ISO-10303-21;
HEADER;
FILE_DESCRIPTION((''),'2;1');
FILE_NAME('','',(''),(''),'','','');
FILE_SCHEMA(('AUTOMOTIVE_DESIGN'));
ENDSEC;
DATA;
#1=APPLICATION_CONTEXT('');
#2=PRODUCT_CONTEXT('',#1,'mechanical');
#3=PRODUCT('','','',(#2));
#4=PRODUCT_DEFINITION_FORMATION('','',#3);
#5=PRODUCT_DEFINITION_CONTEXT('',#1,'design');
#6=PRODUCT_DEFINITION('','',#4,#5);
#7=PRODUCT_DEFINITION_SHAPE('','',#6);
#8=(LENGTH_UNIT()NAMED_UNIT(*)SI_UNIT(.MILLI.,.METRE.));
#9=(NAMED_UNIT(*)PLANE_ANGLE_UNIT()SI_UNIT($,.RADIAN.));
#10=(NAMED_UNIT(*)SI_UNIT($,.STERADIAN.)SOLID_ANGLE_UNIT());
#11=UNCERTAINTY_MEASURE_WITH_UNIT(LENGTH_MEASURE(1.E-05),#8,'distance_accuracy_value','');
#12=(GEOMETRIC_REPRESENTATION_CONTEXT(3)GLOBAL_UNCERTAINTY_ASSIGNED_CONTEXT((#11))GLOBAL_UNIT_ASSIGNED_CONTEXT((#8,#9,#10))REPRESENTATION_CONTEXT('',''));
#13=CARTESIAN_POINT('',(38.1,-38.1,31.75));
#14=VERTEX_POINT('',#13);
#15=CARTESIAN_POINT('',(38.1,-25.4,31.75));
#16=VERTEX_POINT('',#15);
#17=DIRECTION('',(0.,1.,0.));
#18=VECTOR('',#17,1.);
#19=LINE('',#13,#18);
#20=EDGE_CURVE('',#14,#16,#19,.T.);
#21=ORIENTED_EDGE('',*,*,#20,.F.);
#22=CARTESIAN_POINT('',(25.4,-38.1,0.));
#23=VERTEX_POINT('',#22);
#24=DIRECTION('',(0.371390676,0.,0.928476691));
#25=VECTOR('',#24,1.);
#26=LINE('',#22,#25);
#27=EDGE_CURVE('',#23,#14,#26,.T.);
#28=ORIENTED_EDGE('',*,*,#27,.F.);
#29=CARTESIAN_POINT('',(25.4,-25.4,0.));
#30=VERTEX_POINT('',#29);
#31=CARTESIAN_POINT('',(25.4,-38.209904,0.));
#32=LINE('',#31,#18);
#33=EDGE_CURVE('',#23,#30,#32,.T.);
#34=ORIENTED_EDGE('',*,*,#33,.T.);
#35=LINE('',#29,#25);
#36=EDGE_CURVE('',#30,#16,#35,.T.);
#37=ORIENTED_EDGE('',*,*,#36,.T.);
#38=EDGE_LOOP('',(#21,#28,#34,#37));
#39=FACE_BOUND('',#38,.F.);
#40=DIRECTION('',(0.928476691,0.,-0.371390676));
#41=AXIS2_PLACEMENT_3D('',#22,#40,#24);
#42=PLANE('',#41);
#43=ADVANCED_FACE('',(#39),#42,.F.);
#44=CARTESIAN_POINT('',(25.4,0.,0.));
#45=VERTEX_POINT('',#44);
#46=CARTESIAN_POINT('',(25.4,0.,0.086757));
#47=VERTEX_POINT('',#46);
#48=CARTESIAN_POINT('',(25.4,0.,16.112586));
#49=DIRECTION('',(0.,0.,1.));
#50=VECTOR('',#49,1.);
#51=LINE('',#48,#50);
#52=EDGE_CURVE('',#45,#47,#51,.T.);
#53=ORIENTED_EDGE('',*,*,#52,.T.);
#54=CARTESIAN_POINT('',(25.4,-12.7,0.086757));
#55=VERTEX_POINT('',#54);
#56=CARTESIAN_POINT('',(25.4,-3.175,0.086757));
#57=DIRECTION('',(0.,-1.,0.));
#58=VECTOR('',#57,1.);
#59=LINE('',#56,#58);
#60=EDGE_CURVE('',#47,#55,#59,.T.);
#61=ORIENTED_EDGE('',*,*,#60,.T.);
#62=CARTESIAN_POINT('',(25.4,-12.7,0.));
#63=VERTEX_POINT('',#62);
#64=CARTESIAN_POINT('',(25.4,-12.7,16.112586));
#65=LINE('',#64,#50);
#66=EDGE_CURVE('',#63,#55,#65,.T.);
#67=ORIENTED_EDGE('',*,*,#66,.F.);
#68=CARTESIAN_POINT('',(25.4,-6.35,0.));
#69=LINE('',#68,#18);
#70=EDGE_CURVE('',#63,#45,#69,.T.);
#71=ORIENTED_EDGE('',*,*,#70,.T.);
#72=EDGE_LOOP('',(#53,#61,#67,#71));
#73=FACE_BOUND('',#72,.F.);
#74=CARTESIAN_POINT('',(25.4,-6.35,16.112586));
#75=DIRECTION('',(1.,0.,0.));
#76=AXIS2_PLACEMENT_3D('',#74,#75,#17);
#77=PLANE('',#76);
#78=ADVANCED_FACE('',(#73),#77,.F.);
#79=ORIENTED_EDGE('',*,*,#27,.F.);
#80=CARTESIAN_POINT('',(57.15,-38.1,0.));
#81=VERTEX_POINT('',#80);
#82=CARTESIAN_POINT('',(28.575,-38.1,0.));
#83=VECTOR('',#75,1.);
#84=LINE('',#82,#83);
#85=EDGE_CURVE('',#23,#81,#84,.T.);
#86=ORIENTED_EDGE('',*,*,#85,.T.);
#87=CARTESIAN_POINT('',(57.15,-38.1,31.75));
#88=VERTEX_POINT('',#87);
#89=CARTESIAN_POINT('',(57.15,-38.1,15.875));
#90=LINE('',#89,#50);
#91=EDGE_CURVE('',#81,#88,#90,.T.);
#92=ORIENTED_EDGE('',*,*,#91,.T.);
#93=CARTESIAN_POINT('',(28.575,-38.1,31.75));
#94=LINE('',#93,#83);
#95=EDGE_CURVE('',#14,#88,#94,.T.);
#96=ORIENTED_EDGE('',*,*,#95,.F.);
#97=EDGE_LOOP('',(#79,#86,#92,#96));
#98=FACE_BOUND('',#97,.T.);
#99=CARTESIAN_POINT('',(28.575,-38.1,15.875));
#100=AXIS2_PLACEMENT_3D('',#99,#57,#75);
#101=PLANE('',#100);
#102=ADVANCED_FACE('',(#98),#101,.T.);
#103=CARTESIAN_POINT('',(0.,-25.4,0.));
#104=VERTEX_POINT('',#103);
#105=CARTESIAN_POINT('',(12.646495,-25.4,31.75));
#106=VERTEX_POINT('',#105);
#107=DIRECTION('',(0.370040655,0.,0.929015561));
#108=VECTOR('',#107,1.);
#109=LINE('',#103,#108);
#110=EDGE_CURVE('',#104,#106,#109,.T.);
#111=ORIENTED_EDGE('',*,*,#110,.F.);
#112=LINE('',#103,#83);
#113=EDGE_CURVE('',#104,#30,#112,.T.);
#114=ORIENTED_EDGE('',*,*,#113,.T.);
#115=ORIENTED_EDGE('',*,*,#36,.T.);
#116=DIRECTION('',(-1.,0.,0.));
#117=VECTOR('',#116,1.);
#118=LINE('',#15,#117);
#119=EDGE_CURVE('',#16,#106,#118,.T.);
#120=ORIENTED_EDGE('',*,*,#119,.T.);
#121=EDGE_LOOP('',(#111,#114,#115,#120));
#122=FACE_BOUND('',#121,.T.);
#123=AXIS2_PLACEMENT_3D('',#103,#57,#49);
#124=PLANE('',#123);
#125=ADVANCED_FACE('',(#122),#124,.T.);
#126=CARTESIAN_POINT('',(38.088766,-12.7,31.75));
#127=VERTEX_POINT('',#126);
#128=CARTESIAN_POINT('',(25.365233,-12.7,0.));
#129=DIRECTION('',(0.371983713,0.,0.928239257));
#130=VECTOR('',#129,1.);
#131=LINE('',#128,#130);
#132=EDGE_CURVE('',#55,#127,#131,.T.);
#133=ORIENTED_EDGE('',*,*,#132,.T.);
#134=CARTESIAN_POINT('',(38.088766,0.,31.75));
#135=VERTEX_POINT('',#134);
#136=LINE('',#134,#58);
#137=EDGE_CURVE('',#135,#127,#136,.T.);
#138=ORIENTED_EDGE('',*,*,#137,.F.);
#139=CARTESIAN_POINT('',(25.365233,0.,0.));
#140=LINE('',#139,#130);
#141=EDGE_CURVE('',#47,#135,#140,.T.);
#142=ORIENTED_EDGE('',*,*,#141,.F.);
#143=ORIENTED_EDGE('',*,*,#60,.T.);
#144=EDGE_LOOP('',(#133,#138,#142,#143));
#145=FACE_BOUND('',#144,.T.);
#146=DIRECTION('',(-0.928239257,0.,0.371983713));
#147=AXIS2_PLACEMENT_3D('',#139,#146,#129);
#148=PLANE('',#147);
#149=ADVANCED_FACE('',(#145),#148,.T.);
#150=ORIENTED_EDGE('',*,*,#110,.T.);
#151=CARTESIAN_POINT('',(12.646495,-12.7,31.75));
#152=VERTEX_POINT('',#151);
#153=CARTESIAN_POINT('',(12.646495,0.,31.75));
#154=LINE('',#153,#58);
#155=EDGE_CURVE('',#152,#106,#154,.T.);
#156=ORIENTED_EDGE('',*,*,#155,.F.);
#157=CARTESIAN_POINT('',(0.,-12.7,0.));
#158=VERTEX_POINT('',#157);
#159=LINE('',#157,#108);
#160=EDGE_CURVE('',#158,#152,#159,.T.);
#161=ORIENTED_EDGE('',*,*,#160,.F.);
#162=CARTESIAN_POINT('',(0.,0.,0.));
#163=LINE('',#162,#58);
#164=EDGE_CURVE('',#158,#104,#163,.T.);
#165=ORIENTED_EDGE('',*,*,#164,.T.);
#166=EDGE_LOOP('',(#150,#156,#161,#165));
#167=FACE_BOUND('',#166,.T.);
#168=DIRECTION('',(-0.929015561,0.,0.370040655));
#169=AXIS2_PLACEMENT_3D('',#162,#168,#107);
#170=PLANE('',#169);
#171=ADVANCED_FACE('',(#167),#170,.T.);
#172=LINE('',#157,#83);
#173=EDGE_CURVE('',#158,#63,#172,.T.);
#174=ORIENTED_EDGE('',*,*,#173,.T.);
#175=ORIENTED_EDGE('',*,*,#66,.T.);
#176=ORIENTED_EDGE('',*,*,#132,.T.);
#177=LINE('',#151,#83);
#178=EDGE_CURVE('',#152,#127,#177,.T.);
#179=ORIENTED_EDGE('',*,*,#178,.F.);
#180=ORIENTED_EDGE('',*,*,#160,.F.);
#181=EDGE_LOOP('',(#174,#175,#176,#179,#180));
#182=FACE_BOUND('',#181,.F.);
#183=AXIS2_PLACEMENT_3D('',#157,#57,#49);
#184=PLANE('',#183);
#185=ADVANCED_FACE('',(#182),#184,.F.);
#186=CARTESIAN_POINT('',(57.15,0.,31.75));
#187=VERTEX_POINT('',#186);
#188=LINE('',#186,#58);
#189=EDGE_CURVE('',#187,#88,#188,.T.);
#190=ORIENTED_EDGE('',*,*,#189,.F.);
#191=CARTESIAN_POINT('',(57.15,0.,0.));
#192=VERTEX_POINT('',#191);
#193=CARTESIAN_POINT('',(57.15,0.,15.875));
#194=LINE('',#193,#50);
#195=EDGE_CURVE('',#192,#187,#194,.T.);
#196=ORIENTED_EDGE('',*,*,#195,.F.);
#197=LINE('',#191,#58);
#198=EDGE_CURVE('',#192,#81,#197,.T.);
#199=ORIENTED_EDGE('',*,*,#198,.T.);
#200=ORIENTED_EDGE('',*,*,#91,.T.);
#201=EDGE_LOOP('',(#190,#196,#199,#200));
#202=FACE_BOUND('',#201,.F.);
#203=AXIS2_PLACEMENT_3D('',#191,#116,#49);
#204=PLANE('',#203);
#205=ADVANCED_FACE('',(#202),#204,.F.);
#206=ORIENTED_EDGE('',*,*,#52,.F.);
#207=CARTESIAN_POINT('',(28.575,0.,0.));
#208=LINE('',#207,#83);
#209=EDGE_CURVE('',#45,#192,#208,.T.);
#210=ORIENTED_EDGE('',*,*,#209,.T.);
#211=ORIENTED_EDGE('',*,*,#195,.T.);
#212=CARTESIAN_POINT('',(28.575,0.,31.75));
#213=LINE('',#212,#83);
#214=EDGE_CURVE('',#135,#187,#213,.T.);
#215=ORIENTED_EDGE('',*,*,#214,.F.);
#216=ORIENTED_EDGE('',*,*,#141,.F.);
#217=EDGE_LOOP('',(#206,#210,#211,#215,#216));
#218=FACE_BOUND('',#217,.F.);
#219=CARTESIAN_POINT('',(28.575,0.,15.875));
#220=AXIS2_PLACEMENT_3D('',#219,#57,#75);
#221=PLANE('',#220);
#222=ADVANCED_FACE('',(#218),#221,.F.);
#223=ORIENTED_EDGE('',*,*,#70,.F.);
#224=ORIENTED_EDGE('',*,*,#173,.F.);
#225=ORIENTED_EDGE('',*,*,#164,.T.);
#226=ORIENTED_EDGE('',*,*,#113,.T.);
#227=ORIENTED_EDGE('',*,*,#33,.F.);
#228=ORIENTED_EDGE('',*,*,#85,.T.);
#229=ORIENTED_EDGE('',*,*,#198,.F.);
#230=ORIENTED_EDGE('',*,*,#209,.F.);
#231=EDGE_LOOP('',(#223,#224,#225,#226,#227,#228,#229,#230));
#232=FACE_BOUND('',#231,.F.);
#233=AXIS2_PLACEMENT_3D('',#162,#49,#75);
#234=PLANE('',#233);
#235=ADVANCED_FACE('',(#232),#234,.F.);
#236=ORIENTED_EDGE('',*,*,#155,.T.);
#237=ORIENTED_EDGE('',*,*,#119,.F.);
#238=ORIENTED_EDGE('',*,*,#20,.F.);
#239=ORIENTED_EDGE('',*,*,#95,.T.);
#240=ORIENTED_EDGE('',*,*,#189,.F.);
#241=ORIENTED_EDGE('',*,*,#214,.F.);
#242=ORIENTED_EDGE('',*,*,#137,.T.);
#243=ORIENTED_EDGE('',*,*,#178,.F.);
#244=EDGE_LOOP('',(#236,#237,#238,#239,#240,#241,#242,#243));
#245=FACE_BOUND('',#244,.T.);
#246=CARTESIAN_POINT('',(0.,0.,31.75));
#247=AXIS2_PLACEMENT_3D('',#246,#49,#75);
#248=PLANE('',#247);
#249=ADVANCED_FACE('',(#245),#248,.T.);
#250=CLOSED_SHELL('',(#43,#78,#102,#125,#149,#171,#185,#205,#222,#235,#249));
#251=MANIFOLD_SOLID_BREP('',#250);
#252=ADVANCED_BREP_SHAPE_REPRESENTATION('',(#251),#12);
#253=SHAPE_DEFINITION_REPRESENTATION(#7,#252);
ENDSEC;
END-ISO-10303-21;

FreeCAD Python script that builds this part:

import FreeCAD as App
import Part
import Sketcher

V = App.Vector
Q = App.Units.Quantity

doc = App.newDocument("Part")
body = doc.addObject("PartDesign::Body", "Body")

# Sketch on XZ plane
sketch1 = body.newObject("Sketcher::SketchObject", "Sketch")
sketch1.AttachmentSupport = (doc.getObject("XZ_Plane"), [""])
sketch1.MapMode = "FlatFace"
sketch1.addGeometry(Part.LineSegment(V(0, 32, 0), V(0, 0, 0)), False)
sketch1.addGeometry(Part.LineSegment(V(0, 0, 0), V(57, 0, 0)), False)
sketch1.addGeometry(Part.LineSegment(V(57, 0, 0), V(57, 32, 0)), False)
sketch1.addGeometry(Part.LineSegment(V(57, 32, 0), V(0, 32, 0)), False)
sketch1.addConstraint(Sketcher.Constraint("Coincident", 0, 2, 1, 1))
sketch1.addConstraint(Sketcher.Constraint("Coincident", 1, 2, 2, 1))
sketch1.addConstraint(Sketcher.Constraint("Coincident", 2, 2, 3, 1))
sketch1.addConstraint(Sketcher.Constraint("Coincident", 3, 2, 0, 1))
sketch1.addConstraint(Sketcher.Constraint("Vertical", 0))
sketch1.addConstraint(Sketcher.Constraint("Horizontal", 1))
sketch1.addConstraint(Sketcher.Constraint("Vertical", 2))
sketch1.addConstraint(Sketcher.Constraint("Horizontal", 3))
sketch1.addConstraint(Sketcher.Constraint("Coincident", 0, 2, -1, 1))
sketch1.addConstraint(Sketcher.Constraint("DistanceX", 1, 1, 1, 2, Q("2.25 in")))
sketch1.addConstraint(Sketcher.Constraint("DistanceY", 0, 2, 0, 1, Q("1.25 in")))
pad1 = body.newObject("PartDesign::Pad", "Pad")
pad1.Profile = sketch1
pad1.Length = Q("1.5 in")

# Sketch on XZ plane
sketch2 = body.newObject("Sketcher::SketchObject", "Sketch001")
sketch2.AttachmentSupport = (doc.getObject("XZ_Plane"), [""])
sketch2.MapMode = "FlatFace"
sketch2.addGeometry(Part.LineSegment(V(0, 0, 0), V(13, 32, 0)), False)
sketch2.addGeometry(Part.LineSegment(V(13, 32, 0), V(0, 32, 0)), False)
sketch2.addGeometry(Part.LineSegment(V(0, 32, 0), V(0, 0, 0)), False)
sketch2.addConstraint(Sketcher.Constraint("Coincident", 0, 2, 1, 1))
sketch2.addConstraint(Sketcher.Constraint("Coincident", 1, 2, 2, 1))
sketch2.addConstraint(Sketcher.Constraint("Coincident", 2, 2, 0, 1))
sketch2.addConstraint(Sketcher.Constraint("Horizontal", 1))
sketch2.addConstraint(Sketcher.Constraint("Vertical", 2))
sketch2.addConstraint(Sketcher.Constraint("Coincident", 2, 2, -1, 1))
sketch2.addConstraint(Sketcher.Constraint("DistanceX", 1, 2, 1, 1, Q("0.5 in")))
sketch2.addConstraint(Sketcher.Constraint("DistanceY", 2, 2, 2, 1, 31.884328))
pocket1 = body.newObject("PartDesign::Pocket", "Pocket")
pocket1.Profile = sketch2
pocket1.Length = Q("2.55 in")
pocket1.Reversed = True

# Sketch on YZ plane
sketch3 = body.newObject("Sketcher::SketchObject", "Sketch002")
sketch3.AttachmentSupport = (doc.getObject("YZ_Plane"), [""])
sketch3.MapMode = "FlatFace"
sketch3.addGeometry(Part.LineSegment(V(-13, 32, 0), V(-13, 0, 0)), False)
sketch3.addGeometry(Part.LineSegment(V(-13, 0, 0), V(0, 0, 0)), False)
sketch3.addGeometry(Part.LineSegment(V(0, 0, 0), V(0, 32, 0)), False)
sketch3.addGeometry(Part.LineSegment(V(0, 32, 0), V(-13, 32, 0)), False)
sketch3.addGeometry(Part.LineSegment(V(-25, 0, 0), V(-25, 32, 0)), False)
sketch3.addGeometry(Part.LineSegment(V(-25, 32, 0), V(-38, 32, 0)), False)
sketch3.addGeometry(Part.LineSegment(V(-38, 32, 0), V(-38, 0, 0)), False)
sketch3.addGeometry(Part.LineSegment(V(-38, 0, 0), V(-25, 0, 0)), False)
sketch3.addConstraint(Sketcher.Constraint("Coincident", 0, 2, 1, 1))
sketch3.addConstraint(Sketcher.Constraint("Coincident", 1, 2, 2, 1))
sketch3.addConstraint(Sketcher.Constraint("Coincident", 2, 2, 3, 1))
sketch3.addConstraint(Sketcher.Constraint("Coincident", 3, 2, 0, 1))
sketch3.addConstraint(Sketcher.Constraint("Coincident", 4, 2, 5, 1))
sketch3.addConstraint(Sketcher.Constraint("Coincident", 5, 2, 6, 1))
sketch3.addConstraint(Sketcher.Constraint("Coincident", 6, 2, 7, 1))
sketch3.addConstraint(Sketcher.Constraint("Coincident", 7, 2, 4, 1))
sketch3.addConstraint(Sketcher.Constraint("Vertical", 0))
sketch3.addConstraint(Sketcher.Constraint("Horizontal", 1))
sketch3.addConstraint(Sketcher.Constraint("Vertical", 2))
sketch3.addConstraint(Sketcher.Constraint("Horizontal", 3))
sketch3.addConstraint(Sketcher.Constraint("Vertical", 4))
sketch3.addConstraint(Sketcher.Constraint("Horizontal", 5))
sketch3.addConstraint(Sketcher.Constraint("Horizontal", 7))
sketch3.addConstraint(Sketcher.Constraint("Coincident", 1, 2, -1, 1))
sketch3.addConstraint(Sketcher.Constraint("PointOnObject", 6, 2, -1))
sketch3.addConstraint(Sketcher.Constraint("Horizontal", 3, 2, 4, 2))
sketch3.addConstraint(Sketcher.Constraint("Equal", 3, 5))
sketch3.addConstraint(Sketcher.Constraint("DistanceX", 1, 1, 1, 2, Q("0.5 in")))
sketch3.addConstraint(Sketcher.Constraint("DistanceX", 4, 2, -1, 1, Q("1 in")))
sketch3.addConstraint(Sketcher.Constraint("Distance", 6, 32.225359))
sketch3.addConstraint(Sketcher.Constraint("DistanceX", 7, 1, 7, 2, 12.809904))
pocket2 = body.newObject("PartDesign::Pocket", "Pocket001")
pocket2.Profile = sketch3
pocket2.Length = Q("1 in")
pocket2.Reversed = True

# Sketch on XZ plane
sketch4 = body.newObject("Sketcher::SketchObject", "Sketch003")
sketch4.AttachmentSupport = (doc.getObject("XZ_Plane"), [""])
sketch4.MapMode = "FlatFace"
sketch4.addGeometry(Part.LineSegment(V(38, 32, 0), V(25, 32, 0)), False)
sketch4.addGeometry(Part.LineSegment(V(25, 32, 0), V(25, 0, 0)), False)
sketch4.addGeometry(Part.LineSegment(V(25, 0, 0), V(38, 32, 0)), False)
sketch4.addConstraint(Sketcher.Constraint("Coincident", 0, 2, 1, 1))
sketch4.addConstraint(Sketcher.Constraint("Coincident", 1, 2, 2, 1))
sketch4.addConstraint(Sketcher.Constraint("Coincident", 2, 2, 0, 1))
sketch4.addConstraint(Sketcher.Constraint("Horizontal", 0))
sketch4.addConstraint(Sketcher.Constraint("PointOnObject", 1, 2, -1))
sketch4.addConstraint(Sketcher.Constraint("DistanceX", 0, 2, 0, 1, 12.706051))
sketch4.addConstraint(Sketcher.Constraint("Distance", 1, 31.787979))
sketch4.addConstraint(Sketcher.Constraint("Distance", 2, 34.24544))
sketch4.addConstraint(Sketcher.Constraint("DistanceX", -1, 1, 0, 2, 25.397928))
pocket3 = body.newObject("PartDesign::Pocket", "Pocket002")
pocket3.Profile = sketch4
pocket3.Length = Q("0.5 in")
pocket3.Reversed = True

# Sketch on XZ plane
sketch5 = body.newObject("Sketcher::SketchObject", "Sketch004")
sketch5.AttachmentSupport = (doc.getObject("XZ_Plane"), [""])
sketch5.MapMode = "FlatFace"
sketch5.addGeometry(Part.LineSegment(V(75, -53, 0), V(61, -53, 0)), False)
sketch5.addGeometry(Part.LineSegment(V(61, -53, 0), V(61, -86, 0)), False)
sketch5.addGeometry(Part.LineSegment(V(61, -86, 0), V(79, -129, 0)), False)
sketch5.addGeometry(Part.LineSegment(V(79, -129, 0), V(94, -129, 0)), False)
sketch5.addGeometry(Part.LineSegment(V(94, -129, 0), V(93, -96, 0)), False)
sketch5.addGeometry(Part.LineSegment(V(93, -96, 0), V(75, -53, 0)), False)
sketch5.addConstraint(Sketcher.Constraint("Coincident", 0, 2, 1, 1))
sketch5.addConstraint(Sketcher.Constraint("Coincident", 1, 2, 2, 1))
sketch5.addConstraint(Sketcher.Constraint("Coincident", 2, 2, 3, 1))
sketch5.addConstraint(Sketcher.Constraint("Coincident", 3, 2, 4, 1))
sketch5.addConstraint(Sketcher.Constraint("Coincident", 4, 2, 5, 1))
sketch5.addConstraint(Sketcher.Constraint("Coincident", 5, 2, 0, 1))
sketch5.addConstraint(Sketcher.Constraint("Horizontal", 0))
sketch5.addConstraint(Sketcher.Constraint("DistanceY", 4, 2, 0, 2, Q("1.6924 in")))
sketch5.addConstraint(Sketcher.Constraint("DistanceX", 0, 2, 0, 1, 14.01177))
sketch5.addConstraint(Sketcher.Constraint("DistanceY", 1, 2, 0, 2, 32.281801))
sketch5.addConstraint(Sketcher.Constraint("DistanceX", 0, 2, 2, 2, 17.852701))
sketch5.addConstraint(Sketcher.Constraint("Distance", 2, 46.778921))
sketch5.addConstraint(Sketcher.Constraint("Distance", 4, 32.735038))
sketch5.addConstraint(Sketcher.Constraint("Distance", 5, 46.711842))
sketch5.addConstraint(Sketcher.Constraint("DistanceY", 2, 2, -1, 1, 128.796339))
sketch5.addConstraint(Sketcher.Constraint("DistanceX", 2, 2, 3, 2, 15.492991))
sketch5.addConstraint(Sketcher.Constraint("DistanceX", 1, 2, 3, 2, 33.389859))
sketch5.addConstraint(Sketcher.Constraint("DistanceX", -1, 1, 0, 2, 61.148994))
pocket4 = body.newObject("PartDesign::Pocket", "Pocket003")
pocket4.Profile = sketch5
pocket4.Length = Q("0.5 in")

# Sketch on XZ plane
sketch6 = body.newObject("Sketcher::SketchObject", "Sketch005")
sketch6.AttachmentSupport = (doc.getObject("XZ_Plane"), [""])
sketch6.MapMode = "FlatFace"
sketch6.AttachmentOffset = App.Placement(V(0, 0, 1.5 * 25.4), App.Rotation())
sketch6.addGeometry(Part.LineSegment(V(25, 0, 0), V(38, 32, 0)), False)
sketch6.addGeometry(Part.LineSegment(V(38, 32, 0), V(25, 32, 0)), False)
sketch6.addGeometry(Part.LineSegment(V(25, 32, 0), V(25, 0, 0)), False)
sketch6.addConstraint(Sketcher.Constraint("Coincident", 0, 2, 1, 1))
sketch6.addConstraint(Sketcher.Constraint("Coincident", 1, 2, 2, 1))
sketch6.addConstraint(Sketcher.Constraint("Coincident", 2, 2, 0, 1))
sketch6.addConstraint(Sketcher.Constraint("Horizontal", 1))
sketch6.addConstraint(Sketcher.Constraint("Vertical", 2))
sketch6.addConstraint(Sketcher.Constraint("PointOnObject", 2, 2, -1))
sketch6.addConstraint(Sketcher.Constraint("DistanceX", 1, 2, 1, 1, Q("0.5 in")))
sketch6.addConstraint(Sketcher.Constraint("DistanceX", -1, 1, 1, 2, Q("1 in")))
sketch6.addConstraint(Sketcher.Constraint("DistanceY", 2, 2, 2, 1, Q("1.25 in")))
pocket5 = body.newObject("PartDesign::Pocket", "Pocket004")
pocket5.Profile = sketch6
pocket5.Length = Q("0.5 in")

doc.recompute()
